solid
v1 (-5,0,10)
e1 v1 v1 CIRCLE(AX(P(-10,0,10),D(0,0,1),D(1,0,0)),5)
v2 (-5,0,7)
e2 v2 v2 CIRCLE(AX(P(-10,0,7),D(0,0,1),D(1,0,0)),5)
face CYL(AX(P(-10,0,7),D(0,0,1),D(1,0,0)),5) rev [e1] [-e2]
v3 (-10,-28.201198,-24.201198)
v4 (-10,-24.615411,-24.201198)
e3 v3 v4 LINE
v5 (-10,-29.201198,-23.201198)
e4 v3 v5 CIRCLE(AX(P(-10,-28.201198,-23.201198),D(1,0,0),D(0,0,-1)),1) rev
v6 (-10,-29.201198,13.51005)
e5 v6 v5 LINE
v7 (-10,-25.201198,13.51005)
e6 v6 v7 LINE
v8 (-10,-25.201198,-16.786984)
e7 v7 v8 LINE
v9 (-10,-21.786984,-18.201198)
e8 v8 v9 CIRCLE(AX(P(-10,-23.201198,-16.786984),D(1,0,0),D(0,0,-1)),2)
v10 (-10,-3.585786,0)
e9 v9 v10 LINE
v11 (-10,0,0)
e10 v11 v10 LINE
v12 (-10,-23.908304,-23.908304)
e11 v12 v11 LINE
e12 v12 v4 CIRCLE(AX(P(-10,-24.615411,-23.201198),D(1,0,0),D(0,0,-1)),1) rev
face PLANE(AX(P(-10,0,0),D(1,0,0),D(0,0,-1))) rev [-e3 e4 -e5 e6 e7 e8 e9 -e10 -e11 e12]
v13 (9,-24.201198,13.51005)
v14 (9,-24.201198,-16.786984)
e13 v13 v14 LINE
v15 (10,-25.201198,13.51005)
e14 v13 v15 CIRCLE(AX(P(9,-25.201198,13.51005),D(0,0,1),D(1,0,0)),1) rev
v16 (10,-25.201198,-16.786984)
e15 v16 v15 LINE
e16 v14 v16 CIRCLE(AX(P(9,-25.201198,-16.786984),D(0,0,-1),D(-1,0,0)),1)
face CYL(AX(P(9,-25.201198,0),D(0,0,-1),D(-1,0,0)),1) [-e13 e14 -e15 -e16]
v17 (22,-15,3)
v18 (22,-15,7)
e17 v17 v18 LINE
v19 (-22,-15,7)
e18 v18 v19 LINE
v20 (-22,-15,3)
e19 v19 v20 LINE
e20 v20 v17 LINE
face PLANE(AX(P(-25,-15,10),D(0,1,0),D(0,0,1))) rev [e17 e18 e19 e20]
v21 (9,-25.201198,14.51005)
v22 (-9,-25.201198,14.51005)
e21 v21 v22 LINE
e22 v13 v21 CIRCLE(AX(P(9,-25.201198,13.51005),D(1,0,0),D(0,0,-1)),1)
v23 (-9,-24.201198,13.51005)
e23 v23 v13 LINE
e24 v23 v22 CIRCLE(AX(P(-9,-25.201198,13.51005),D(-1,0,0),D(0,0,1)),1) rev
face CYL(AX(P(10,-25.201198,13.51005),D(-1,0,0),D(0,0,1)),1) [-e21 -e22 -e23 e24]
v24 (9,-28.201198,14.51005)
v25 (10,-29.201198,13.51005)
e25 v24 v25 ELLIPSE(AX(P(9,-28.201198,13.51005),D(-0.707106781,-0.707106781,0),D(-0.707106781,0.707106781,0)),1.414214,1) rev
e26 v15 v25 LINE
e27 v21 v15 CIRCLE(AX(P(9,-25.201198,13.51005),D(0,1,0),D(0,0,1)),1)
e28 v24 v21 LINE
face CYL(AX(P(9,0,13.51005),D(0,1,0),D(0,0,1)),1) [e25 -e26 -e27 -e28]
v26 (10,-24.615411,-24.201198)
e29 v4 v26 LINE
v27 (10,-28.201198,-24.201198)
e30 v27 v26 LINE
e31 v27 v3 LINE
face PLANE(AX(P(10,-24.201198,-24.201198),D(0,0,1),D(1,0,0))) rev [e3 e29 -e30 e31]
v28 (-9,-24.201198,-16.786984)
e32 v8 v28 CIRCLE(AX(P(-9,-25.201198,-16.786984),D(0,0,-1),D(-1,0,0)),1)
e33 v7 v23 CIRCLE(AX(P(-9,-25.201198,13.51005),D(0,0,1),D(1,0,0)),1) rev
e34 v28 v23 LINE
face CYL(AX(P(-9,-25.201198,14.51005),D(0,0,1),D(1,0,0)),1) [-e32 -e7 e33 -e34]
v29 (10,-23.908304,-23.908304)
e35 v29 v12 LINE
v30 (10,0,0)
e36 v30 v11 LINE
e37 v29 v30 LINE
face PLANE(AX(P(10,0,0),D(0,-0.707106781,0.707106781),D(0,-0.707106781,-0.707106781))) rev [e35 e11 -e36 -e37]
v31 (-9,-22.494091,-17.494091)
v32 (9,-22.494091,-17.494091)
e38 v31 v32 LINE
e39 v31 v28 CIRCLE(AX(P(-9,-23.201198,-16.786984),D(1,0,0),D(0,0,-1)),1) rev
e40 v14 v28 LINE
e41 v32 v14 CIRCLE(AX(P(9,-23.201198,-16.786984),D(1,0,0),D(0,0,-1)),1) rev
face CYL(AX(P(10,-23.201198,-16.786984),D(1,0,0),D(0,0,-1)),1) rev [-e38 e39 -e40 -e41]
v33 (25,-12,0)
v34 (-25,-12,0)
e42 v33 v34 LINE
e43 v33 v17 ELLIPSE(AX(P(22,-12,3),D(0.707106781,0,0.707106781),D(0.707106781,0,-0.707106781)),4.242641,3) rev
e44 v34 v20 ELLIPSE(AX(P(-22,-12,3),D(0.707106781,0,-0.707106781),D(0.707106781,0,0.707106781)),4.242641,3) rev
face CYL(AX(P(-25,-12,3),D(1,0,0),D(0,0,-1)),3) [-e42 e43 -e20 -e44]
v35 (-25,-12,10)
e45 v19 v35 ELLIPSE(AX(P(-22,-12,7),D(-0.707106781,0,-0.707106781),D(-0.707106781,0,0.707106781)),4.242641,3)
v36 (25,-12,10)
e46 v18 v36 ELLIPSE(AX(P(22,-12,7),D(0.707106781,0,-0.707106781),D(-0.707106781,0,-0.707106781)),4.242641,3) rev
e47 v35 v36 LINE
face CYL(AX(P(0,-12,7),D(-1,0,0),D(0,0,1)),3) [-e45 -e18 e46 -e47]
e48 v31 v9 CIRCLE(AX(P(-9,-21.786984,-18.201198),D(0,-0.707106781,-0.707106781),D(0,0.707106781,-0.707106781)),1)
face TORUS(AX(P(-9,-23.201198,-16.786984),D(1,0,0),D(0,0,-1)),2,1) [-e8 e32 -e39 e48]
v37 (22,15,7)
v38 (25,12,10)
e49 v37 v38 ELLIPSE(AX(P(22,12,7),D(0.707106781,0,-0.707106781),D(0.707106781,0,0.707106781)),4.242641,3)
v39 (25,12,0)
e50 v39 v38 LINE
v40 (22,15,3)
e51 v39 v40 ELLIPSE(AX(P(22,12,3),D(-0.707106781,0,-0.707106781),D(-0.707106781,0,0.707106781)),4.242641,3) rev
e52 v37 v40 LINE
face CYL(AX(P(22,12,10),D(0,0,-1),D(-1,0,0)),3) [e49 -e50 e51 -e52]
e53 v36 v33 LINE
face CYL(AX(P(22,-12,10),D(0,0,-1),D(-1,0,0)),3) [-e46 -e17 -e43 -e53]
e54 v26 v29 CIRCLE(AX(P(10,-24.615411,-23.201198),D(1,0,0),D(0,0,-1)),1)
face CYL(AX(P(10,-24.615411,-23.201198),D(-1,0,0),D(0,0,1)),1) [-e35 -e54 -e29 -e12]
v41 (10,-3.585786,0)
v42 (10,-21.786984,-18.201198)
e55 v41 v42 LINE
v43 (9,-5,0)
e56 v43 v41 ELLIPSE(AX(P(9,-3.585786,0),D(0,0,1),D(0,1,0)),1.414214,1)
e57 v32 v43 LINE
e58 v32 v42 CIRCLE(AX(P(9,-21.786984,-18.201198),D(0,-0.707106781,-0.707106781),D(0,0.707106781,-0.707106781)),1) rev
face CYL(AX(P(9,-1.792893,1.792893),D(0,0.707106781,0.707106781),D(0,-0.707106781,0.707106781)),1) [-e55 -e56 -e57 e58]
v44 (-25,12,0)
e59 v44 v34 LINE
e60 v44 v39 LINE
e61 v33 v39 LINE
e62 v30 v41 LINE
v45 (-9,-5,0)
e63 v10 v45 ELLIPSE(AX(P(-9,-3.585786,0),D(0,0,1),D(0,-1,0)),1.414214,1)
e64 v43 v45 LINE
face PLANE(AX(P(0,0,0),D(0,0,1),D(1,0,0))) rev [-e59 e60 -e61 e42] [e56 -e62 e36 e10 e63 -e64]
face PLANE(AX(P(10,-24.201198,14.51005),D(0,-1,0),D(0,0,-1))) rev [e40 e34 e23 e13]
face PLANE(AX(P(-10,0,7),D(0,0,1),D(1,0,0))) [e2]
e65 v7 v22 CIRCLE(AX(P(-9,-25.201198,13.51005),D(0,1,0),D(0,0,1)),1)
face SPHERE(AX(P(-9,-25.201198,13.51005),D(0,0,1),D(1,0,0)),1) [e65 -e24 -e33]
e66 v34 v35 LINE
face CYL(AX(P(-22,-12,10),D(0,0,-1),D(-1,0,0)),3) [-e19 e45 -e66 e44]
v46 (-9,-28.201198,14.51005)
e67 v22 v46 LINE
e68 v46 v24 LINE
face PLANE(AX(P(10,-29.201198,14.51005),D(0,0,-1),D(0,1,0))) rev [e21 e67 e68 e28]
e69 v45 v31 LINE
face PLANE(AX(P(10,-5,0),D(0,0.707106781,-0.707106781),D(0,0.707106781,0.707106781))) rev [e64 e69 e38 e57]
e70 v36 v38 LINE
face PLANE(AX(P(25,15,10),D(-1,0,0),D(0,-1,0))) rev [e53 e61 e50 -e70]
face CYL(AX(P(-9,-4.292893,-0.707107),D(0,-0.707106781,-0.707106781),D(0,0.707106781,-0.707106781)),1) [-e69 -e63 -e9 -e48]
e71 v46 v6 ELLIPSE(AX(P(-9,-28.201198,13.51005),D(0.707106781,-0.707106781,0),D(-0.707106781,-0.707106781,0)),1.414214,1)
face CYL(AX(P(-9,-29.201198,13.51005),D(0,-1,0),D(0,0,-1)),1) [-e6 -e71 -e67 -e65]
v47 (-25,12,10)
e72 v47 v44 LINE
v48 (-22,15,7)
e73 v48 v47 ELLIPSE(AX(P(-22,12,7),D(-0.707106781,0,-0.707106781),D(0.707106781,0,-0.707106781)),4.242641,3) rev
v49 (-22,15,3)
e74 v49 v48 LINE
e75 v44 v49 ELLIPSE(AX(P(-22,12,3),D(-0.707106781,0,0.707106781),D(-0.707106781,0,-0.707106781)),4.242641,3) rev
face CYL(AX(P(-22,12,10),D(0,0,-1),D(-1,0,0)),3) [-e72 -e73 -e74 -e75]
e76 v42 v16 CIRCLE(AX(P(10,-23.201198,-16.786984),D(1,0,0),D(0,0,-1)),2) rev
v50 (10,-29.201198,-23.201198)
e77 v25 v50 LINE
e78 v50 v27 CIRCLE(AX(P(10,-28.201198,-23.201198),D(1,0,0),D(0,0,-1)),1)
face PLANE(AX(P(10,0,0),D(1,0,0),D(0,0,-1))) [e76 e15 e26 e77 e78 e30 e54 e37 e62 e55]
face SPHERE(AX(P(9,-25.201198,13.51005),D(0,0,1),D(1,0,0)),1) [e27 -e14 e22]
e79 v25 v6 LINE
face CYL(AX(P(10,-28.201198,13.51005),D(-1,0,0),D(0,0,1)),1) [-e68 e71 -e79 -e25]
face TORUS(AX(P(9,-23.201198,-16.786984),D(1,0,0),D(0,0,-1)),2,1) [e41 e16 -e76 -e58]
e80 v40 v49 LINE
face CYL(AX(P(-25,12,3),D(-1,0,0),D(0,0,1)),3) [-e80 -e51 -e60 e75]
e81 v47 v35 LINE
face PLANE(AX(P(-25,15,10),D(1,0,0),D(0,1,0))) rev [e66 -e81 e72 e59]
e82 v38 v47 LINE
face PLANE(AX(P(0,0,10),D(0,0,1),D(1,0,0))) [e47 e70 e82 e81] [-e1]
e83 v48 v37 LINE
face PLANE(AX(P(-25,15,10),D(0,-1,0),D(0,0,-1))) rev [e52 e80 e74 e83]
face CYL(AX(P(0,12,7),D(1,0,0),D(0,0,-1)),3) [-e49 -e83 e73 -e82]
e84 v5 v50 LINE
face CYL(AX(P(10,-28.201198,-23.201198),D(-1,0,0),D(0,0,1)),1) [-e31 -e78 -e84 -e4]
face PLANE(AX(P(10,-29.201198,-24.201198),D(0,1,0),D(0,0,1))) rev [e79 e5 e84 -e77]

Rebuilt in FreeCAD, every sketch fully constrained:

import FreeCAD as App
import Part
import Sketcher
Q = App.Units.Quantity


def edges_at(feature, points):
    """Names of the edges that pass closest to the given points."""
    edges = feature.Shape.Edges
    near = lambda p: min(range(len(edges)), key=lambda i: edges[i].distToShape(Part.Vertex(*p))[0])
    return sorted({f"Edge{near(p) + 1}" for p in points})


def add_polygon(sketch, points):
    """Adds a closed chain of lines whose ends are joined by coincident constraints."""
    first, n = sketch.GeometryCount, len(points)
    for a, b in zip(points, points[1:] + points[:1]):
        sketch.addGeometry(Part.LineSegment(App.Vector(*a, 0), App.Vector(*b, 0)), False)
    for i in range(n):
        sketch.addConstraint(Sketcher.Constraint("Coincident", first + i, 2, first + (i + 1) % n, 1))

doc = App.newDocument("Part")
params = doc.addObject("Spreadsheet::Sheet", "Params")
for row, (alias, value) in enumerate([
    ("sketch1_width", "50 mm"),
    ("sketch1_height", "30 mm"),
    ("pad1_length", "10 mm"),
    ("sketch2_width", "5 mm"),
    ("pad2_length", "20 mm"),
    ("sketch3_diameter", "10 mm"),
    ("pocket1_length", "3 mm"),
    ("fillet_radius", "3 mm"),
    ("fillet2_radius", "1 mm"),
], start=1):
    params.set(f"A{row}", alias)
    params.set(f"B{row}", "=" + value)
    params.setAlias(f"B{row}", alias)

body = doc.addObject("PartDesign::Body", "Body")

sketch1 = body.newObject("Sketcher::SketchObject", "Sketch")
sketch1.AttachmentSupport = (doc.getObject("XY_Plane"), [""])
sketch1.MapMode = "FlatFace"
add_polygon(sketch1, [(-25, 15), (-25, -15), (25, -15), (25, 15)])
sketch1.addConstraint([
    Sketcher.Constraint("Vertical", 0),
    Sketcher.Constraint("Horizontal", 1),
    Sketcher.Constraint("Vertical", 2),
    Sketcher.Constraint("Horizontal", 3),
    Sketcher.Constraint("Symmetric", 0, 2, 2, 2, -1, 1),
    Sketcher.Constraint("DistanceX", 1, 1, 1, 2, 50.0),
    Sketcher.Constraint("DistanceY", 0, 2, 0, 1, 30.0),
])
sketch1.setExpression("Constraints[9]", "Params.sketch1_width")
sketch1.setExpression("Constraints[10]", "Params.sketch1_height")
pad1 = body.newObject("PartDesign::Pad", "Pad")
pad1.Profile = sketch1
pad1.setExpression("Length", "Params.pad1_length")

sketch2 = body.newObject("Sketcher::SketchObject", "Sketch001")
sketch2.AttachmentSupport = (doc.getObject("YZ_Plane"), [""])
sketch2.MapMode = "FlatFace"
add_polygon(sketch2, [(-24.201198, -24.201198), (0, 0), (-5, 0), (-24.201198, -19.201198), (-24.201198, 14.51005), (-29.201198, 14.51005), (-29.201198, -24.201198)])
sketch2.addConstraint([
    Sketcher.Constraint("Horizontal", 1),
    Sketcher.Constraint("Vertical", 3),
    Sketcher.Constraint("Horizontal", 4),
    Sketcher.Constraint("Vertical", 5),
    Sketcher.Constraint("Horizontal", 6),
    Sketcher.Constraint("Coincident", 0, 2, -1, 1),
    Sketcher.Constraint("Parallel", 0, 2),
    Sketcher.Constraint("Vertical", 3, 2, 6, 2),
    Sketcher.Constraint("Equal", 1, 4),
    Sketcher.Constraint("DistanceX", 1, 2, 1, 1, 5.0),
    Sketcher.Constraint("Angle", 0, Q("45 deg")),
    Sketcher.Constraint("Distance", 0, 34.225662),
    Sketcher.Constraint("DistanceY", 3, 1, 3, 2, 33.711248),
])
sketch2.setExpression("Constraints[16]", "Params.sketch2_width")
pad2 = body.newObject("PartDesign::Pad", "Pad001")
pad2.Profile = sketch2
pad2.setExpression("Length", "Params.pad2_length")
pad2.Midplane = True

sketch3 = body.newObject("Sketcher::SketchObject", "Sketch002")
sketch3.AttachmentSupport = (doc.getObject("XY_Plane"), [""])
sketch3.MapMode = "FlatFace"
sketch3.AttachmentOffset = App.Placement(App.Vector(0, 0, 10), App.Rotation())
sketch3.addGeometry(Part.Circle(App.Vector(-10, 0, 0), App.Vector(0, 0, 1), 5), False)
sketch3.addConstraint([
    Sketcher.Constraint("PointOnObject", 0, 3, -1),
    Sketcher.Constraint("Diameter", 0, 10.0),
    Sketcher.Constraint("DistanceX", 0, 3, -1, 1, 10.0),
])
sketch3.setExpression("Constraints[1]", "Params.sketch3_diameter")
pocket1 = body.newObject("PartDesign::Pocket", "Pocket")
pocket1.Profile = sketch3
pocket1.setExpression("Length", "Params.pocket1_length")
doc.recompute()

fillet = body.newObject("PartDesign::Fillet", "Fillet")
fillet.Base = (pocket1, edges_at(pocket1, [
    (0, -15, 10),
    (0, -15, 0),
    (0, 15, 0),
    (25, -15, 5),
    (-25, -15, 5),
    (-25, 15, 5),
    (25, 15, 5),
    (0, 15, 10),
]))
fillet.setExpression("Radius", "Params.fillet_radius")
doc.recompute()

fillet2 = body.newObject("PartDesign::Fillet", "Fillet001")
fillet2.Base = (fillet, edges_at(fillet, [
    (-10, -14.601, -9.601),
    (-10, -24.201, -2.346),
    (0, -24.201, -19.201),
    (-10, -26.701, 14.51),
    (0, -24.201, 14.51),
    (0, -29.201, 14.51),
    (0, -29.201, -24.201),
    (0, -24.201, -24.201),
    (10, -14.601, -9.601),
    (10, -24.201, -2.346),
    (10, -26.701, 14.51),
]))
fillet2.setExpression("Radius", "Params.fillet2_radius")

doc.recompute()
